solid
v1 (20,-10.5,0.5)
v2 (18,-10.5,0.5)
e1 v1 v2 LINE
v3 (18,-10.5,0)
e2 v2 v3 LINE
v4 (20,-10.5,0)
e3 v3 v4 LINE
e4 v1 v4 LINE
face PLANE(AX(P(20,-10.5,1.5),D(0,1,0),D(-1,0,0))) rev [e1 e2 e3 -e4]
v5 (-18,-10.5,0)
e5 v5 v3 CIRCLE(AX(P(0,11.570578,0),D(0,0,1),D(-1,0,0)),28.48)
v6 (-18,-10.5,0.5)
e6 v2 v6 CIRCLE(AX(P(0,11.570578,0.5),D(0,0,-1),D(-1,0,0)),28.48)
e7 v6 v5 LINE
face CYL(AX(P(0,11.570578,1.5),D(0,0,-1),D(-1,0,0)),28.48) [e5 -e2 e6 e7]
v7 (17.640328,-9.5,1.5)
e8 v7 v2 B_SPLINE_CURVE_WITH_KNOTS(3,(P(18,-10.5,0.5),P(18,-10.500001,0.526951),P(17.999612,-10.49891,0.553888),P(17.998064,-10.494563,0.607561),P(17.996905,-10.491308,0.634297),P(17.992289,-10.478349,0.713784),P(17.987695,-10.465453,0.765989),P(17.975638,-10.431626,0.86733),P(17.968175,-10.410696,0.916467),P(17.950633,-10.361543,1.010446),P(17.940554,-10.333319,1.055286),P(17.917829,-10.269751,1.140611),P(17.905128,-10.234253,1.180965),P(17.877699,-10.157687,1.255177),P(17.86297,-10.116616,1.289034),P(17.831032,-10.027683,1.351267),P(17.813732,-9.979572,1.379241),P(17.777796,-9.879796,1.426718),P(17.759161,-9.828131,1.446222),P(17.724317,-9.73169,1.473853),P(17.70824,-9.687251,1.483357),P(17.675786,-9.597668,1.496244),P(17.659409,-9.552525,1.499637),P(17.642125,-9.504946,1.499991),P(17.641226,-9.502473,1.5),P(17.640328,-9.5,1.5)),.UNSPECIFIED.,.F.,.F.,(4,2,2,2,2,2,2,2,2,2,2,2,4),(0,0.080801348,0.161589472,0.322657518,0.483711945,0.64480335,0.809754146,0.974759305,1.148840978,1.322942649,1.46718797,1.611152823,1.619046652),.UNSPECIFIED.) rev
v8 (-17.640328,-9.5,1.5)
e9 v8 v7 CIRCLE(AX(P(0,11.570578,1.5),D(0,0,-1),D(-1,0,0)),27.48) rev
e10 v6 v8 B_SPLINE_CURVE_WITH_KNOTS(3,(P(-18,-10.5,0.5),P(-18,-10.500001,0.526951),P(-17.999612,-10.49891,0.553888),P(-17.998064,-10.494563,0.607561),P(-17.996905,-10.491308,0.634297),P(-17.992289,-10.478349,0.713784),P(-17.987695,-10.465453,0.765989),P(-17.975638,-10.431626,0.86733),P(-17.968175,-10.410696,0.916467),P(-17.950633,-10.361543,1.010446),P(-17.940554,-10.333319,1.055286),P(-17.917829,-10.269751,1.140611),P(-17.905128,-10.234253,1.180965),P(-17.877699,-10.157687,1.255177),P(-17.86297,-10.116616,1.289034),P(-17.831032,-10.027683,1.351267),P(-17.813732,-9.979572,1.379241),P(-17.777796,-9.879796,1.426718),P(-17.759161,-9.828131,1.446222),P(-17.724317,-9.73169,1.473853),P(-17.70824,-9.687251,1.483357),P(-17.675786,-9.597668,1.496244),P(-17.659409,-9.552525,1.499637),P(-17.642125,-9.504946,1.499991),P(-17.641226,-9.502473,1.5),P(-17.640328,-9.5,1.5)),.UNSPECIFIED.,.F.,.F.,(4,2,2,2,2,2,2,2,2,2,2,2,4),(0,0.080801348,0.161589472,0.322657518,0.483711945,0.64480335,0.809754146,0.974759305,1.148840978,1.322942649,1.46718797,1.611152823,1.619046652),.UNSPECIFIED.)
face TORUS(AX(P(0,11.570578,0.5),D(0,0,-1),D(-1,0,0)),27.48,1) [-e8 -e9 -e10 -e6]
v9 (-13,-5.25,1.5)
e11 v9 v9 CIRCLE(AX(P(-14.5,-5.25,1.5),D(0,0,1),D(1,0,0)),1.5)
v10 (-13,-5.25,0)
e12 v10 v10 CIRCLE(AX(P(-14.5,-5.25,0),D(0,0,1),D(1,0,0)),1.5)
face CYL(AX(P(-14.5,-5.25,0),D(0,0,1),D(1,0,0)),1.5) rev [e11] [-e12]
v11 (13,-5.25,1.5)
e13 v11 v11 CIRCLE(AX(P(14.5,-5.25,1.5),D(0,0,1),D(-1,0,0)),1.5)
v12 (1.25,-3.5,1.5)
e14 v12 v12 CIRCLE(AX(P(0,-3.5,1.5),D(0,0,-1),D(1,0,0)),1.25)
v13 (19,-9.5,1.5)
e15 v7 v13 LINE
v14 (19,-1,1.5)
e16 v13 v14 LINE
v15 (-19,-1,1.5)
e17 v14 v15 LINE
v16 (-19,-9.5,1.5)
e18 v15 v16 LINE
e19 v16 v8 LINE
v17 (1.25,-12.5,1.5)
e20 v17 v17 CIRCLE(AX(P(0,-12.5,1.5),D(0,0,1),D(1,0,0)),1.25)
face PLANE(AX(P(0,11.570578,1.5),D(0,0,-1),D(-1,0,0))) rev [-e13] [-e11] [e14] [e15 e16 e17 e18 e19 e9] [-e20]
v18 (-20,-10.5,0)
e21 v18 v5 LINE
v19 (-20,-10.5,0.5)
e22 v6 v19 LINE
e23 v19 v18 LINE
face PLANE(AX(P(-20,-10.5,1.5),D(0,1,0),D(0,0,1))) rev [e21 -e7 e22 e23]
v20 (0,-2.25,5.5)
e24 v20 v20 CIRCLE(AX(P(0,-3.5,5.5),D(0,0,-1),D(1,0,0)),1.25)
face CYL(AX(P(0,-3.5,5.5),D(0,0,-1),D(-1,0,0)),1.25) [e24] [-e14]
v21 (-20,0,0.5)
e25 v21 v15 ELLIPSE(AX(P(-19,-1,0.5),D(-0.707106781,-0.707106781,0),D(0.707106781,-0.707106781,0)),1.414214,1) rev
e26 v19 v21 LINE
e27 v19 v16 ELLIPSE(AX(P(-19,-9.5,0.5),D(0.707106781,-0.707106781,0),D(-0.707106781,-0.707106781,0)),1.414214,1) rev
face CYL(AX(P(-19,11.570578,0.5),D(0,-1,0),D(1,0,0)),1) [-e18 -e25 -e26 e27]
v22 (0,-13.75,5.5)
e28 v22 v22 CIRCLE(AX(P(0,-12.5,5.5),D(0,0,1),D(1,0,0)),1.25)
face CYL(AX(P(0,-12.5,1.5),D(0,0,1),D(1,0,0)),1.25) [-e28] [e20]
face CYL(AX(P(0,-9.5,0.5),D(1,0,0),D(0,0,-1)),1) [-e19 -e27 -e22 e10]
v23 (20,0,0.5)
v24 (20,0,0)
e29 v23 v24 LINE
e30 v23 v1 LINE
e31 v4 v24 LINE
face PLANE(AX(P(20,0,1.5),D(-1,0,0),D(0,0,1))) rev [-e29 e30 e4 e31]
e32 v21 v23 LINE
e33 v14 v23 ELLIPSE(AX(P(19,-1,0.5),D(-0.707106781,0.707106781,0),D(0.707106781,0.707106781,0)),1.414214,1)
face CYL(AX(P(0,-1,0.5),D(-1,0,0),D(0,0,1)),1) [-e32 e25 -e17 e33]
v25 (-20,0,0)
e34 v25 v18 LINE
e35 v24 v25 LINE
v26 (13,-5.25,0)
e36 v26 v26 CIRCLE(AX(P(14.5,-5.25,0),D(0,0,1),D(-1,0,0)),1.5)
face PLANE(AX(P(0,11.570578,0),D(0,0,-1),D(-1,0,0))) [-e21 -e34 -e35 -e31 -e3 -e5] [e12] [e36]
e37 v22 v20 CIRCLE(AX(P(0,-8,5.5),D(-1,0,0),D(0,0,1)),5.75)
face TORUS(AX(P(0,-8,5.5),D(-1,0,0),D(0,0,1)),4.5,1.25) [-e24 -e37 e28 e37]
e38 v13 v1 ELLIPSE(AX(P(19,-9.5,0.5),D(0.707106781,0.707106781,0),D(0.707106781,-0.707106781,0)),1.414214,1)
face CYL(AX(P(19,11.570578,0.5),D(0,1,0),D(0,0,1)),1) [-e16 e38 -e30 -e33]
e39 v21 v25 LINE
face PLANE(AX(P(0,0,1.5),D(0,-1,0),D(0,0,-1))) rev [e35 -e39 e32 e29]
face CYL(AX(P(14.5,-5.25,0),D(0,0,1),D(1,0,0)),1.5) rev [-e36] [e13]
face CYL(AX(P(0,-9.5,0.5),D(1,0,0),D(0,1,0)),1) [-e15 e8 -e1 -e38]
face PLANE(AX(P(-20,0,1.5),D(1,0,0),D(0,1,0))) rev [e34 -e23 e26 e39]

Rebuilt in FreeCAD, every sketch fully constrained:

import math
import FreeCAD as App
import Part
import Sketcher
from FreeCAD import Vector
Q = App.Units.Quantity


def edges_at(feature, points):
    """Names of the edges that pass closest to the given points."""
    edges = feature.Shape.Edges
    near = lambda p: min(range(len(edges)), key=lambda i: edges[i].distToShape(Part.Vertex(*p))[0])
    return sorted({f"Edge{near(p) + 1}" for p in points})

doc = App.newDocument("Part")
body = doc.addObject("PartDesign::Body", "Body")

sketch1 = body.newObject("Sketcher::SketchObject", "Sketch")
sketch1.AttachmentSupport = (doc.getObject("XY_Plane"), [""])
sketch1.MapMode = "FlatFace"
sketch1.addGeometry(Part.LineSegment(Vector(20, -10.5, 0), Vector(20, 0, 0)), False)
sketch1.addGeometry(Part.LineSegment(Vector(20, 0, 0), Vector(-20, 0, 0)), False)
sketch1.addGeometry(Part.LineSegment(Vector(-20, 0, 0), Vector(-20, -10.5, 0)), False)
sketch1.addGeometry(Part.LineSegment(Vector(-20, -10.5, 0), Vector(-18, -10.5, 0)), False)
sketch1.addGeometry(Part.ArcOfCircle(Part.Circle(Vector(0, 11.6, 0), Vector(0, 0, 1), 28.5), math.radians(-129), math.radians(-51)), False)
sketch1.addGeometry(Part.LineSegment(Vector(18, -10.5, 0), Vector(20, -10.5, 0)), False)
sketch1.addConstraint(Sketcher.Constraint("Coincident", 0, 2, 1, 1))
sketch1.addConstraint(Sketcher.Constraint("Coincident", 1, 2, 2, 1))
sketch1.addConstraint(Sketcher.Constraint("Coincident", 2, 2, 3, 1))
sketch1.addConstraint(Sketcher.Constraint("Coincident", 3, 2, 4, 1))
sketch1.addConstraint(Sketcher.Constraint("Coincident", 4, 2, 5, 1))
sketch1.addConstraint(Sketcher.Constraint("Coincident", 5, 2, 0, 1))
sketch1.addConstraint(Sketcher.Constraint("Vertical", 0))
sketch1.addConstraint(Sketcher.Constraint("Horizontal", 1))
sketch1.addConstraint(Sketcher.Constraint("Vertical", 2))
sketch1.addConstraint(Sketcher.Constraint("Horizontal", 3))
sketch1.addConstraint(Sketcher.Constraint("Horizontal", 5))
sketch1.addConstraint(Sketcher.Constraint("Symmetric", 0, 2, 1, 2, -1, 1))
sketch1.addConstraint(Sketcher.Constraint("Symmetric", 3, 2, 4, 2, -2))
sketch1.addConstraint(Sketcher.Constraint("DistanceX", 1, 2, 1, 1, Q("40 mm")))
sketch1.addConstraint(Sketcher.Constraint("DistanceX", 3, 1, 3, 2, Q("2 mm")))
sketch1.addConstraint(Sketcher.Constraint("Radius", 4, Q("28.48 mm")))
sketch1.addConstraint(Sketcher.Constraint("DistanceY", 0, 1, 0, 2, Q("10.5 mm")))
pad1 = body.newObject("PartDesign::Pad", "Pad")
pad1.Profile = sketch1
pad1.Length = 1.5

sketch2 = body.newObject("Sketcher::SketchObject", "Sketch001")
sketch2.AttachmentSupport = (doc.getObject("XY_Plane"), [""])
sketch2.MapMode = "FlatFace"
sketch2.AttachmentOffset = App.Placement(Vector(0, 0, 1.5), App.Rotation())
sketch2.addGeometry(Part.Circle(Vector(-14.5, -5.2, 0), Vector(0, 0, 1), 1.5), False)
sketch2.addGeometry(Part.Circle(Vector(14.5, -5.2, 0), Vector(0, 0, 1), 1.5), False)
sketch2.addConstraint(Sketcher.Constraint("Equal", 0, 1))
sketch2.addConstraint(Sketcher.Constraint("Symmetric", 0, 3, 1, 3, -2))
sketch2.addConstraint(Sketcher.Constraint("Diameter", 0, Q("3 mm")))
sketch2.addConstraint(Sketcher.Constraint("DistanceX", 0, 3, 1, 3, Q("29 mm")))
sketch2.addConstraint(Sketcher.Constraint("DistanceY", 0, 3, -1, 1, Q("5.25 mm")))
pocket1 = body.newObject("PartDesign::Pocket", "Pocket")
pocket1.Profile = sketch2
pocket1.Length = 1.5

sketch3 = body.newObject("Sketcher::SketchObject", "Sketch002")
sketch3.AttachmentSupport = (doc.getObject("XY_Plane"), [""])
sketch3.MapMode = "FlatFace"
sketch3.AttachmentOffset = App.Placement(Vector(0, 0, 1.5), App.Rotation())
sketch3.addGeometry(Part.Circle(Vector(0, -12.5, 0), Vector(0, 0, 1), 1.2), False)
sketch3.addConstraint(Sketcher.Constraint("PointOnObject", 0, 3, -2))
sketch3.addConstraint(Sketcher.Constraint("Diameter", 0, Q("2.5 mm")))
sketch3.addConstraint(Sketcher.Constraint("DistanceY", 0, 3, -1, 1, Q("12.5 mm")))

sketch4 = body.newObject("Sketcher::SketchObject", "Sketch003")
sketch4.AttachmentSupport = (doc.getObject("YZ_Plane"), [""])
sketch4.MapMode = "FlatFace"
sketch4.addGeometry(Part.LineSegment(Vector(-3.5, 1.5, 0), Vector(-3.5, 5.5, 0)), False)
sketch4.addGeometry(Part.ArcOfCircle(Part.Circle(Vector(-8, 5.5, 0), Vector(0, 0, 1), 4.5), math.radians(0), math.radians(180)), False)
sketch4.addGeometry(Part.LineSegment(Vector(-12.5, 5.5, 0), Vector(-12.5, 1.5, 0)), False)
sketch4.addConstraint(Sketcher.Constraint("Tangent", 0, 2, 1, 1))
sketch4.addConstraint(Sketcher.Constraint("Tangent", 1, 2, 2, 1))
sketch4.addConstraint(Sketcher.Constraint("Vertical", 0))
sketch4.addConstraint(Sketcher.Constraint("Vertical", 2))
sketch4.addConstraint(Sketcher.Constraint("Horizontal", 0, 1, 2, 2))
sketch4.addConstraint(Sketcher.Constraint("Radius", 1, Q("4.5 mm")))
sketch4.addConstraint(Sketcher.Constraint("DistanceY", 0, 1, 0, 2, Q("4 mm")))
sketch4.addConstraint(Sketcher.Constraint("DistanceX", 1, 3, -1, 1, Q("8 mm")))
sketch4.addConstraint(Sketcher.Constraint("DistanceY", -1, 1, 1, 3, Q("5.5 mm")))
doc.recompute()

additivepipe = body.newObject("PartDesign::AdditivePipe", "AdditivePipe")
additivepipe.Profile = sketch3
additivepipe.Spine = (sketch4, ["Edge1", "Edge2", "Edge3"])
doc.recompute()

fillet = body.newObject("PartDesign::Fillet", "Fillet")
fillet.Base = (additivepipe, edges_at(additivepipe, [
    (-19, -10.5, 1.5),
    (0, -16.909, 1.5),
    (19, -10.5, 1.5),
    (20, -5.25, 1.5),
    (0, 0, 1.5),
    (-20, -5.25, 1.5),
]))
fillet.Radius = 1

doc.recompute()
